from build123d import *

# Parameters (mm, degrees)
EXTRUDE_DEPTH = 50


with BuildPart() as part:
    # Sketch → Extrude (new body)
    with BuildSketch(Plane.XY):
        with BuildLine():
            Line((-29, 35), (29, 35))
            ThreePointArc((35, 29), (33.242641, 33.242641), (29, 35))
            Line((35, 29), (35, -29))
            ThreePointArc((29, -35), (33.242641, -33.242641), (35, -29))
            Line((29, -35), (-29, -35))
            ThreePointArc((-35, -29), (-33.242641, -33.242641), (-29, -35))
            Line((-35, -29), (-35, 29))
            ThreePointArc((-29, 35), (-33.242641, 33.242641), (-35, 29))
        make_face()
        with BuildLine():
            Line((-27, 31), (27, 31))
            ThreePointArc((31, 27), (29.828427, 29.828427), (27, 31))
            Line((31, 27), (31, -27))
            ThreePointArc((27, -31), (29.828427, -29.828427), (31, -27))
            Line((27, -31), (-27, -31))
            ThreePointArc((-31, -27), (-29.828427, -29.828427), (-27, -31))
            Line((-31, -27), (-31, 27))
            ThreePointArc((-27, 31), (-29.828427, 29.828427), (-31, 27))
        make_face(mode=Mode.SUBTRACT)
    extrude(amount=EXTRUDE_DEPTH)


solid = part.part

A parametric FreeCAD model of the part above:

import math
import FreeCAD as App
import Part
import Sketcher
Q = App.Units.Quantity

doc = App.newDocument("Part")
params = doc.addObject("Spreadsheet::Sheet", "Params")
for row, (alias, value) in enumerate([
    ("sketch1_radius", "5.999999 mm"),
    ("sketch1_radius2", "4 mm"),
    ("sketch1_width", "58 mm"),
    ("sketch1_width2", "54 mm"),
    ("pad1_length", "50 mm"),
], start=1):
    params.set(f"A{row}", alias)
    params.set(f"B{row}", "=" + value)
    params.setAlias(f"B{row}", alias)

body = doc.addObject("PartDesign::Body", "Body")

# Sketch on XY plane
sketch1 = doc.addObject("Sketcher::SketchObject", "Sketch")
body.addObject(sketch1)
sketch1.AttachmentSupport = (doc.XY_Plane, [""])
sketch1.MapMode = "FlatFace"
sketch1.addGeometry([
    Part.LineSegment(App.Vector(29, 35, 0), App.Vector(-29, 35, 0)),  # 0
    Part.ArcOfCircle(Part.Circle(App.Vector(-29.000001, 29.000001, 0), App.Vector(0, 0, 1), 5.999999), math.radians(89.99999), math.radians(180.00001)),  # 1
    Part.LineSegment(App.Vector(-35, 29, 0), App.Vector(-35, -29, 0)),  # 2
    Part.ArcOfCircle(Part.Circle(App.Vector(-29.000001, -29.000001, 0), App.Vector(0, 0, 1), 5.999999), math.radians(179.99999), math.radians(270.00001)),  # 3
    Part.LineSegment(App.Vector(-29, -35, 0), App.Vector(29, -35, 0)),  # 4
    Part.ArcOfCircle(Part.Circle(App.Vector(29.000001, -29.000001, 0), App.Vector(0, 0, 1), 5.999999), math.radians(-90.00001), math.radians(0.00001)),  # 5
    Part.LineSegment(App.Vector(35, -29, 0), App.Vector(35, 29, 0)),  # 6
    Part.ArcOfCircle(Part.Circle(App.Vector(29.000001, 29.000001, 0), App.Vector(0, 0, 1), 5.999999), math.radians(-0.00001), math.radians(90.00001)),  # 7
    Part.LineSegment(App.Vector(-27, 31, 0), App.Vector(27, 31, 0)),  # 8
    Part.ArcOfCircle(Part.Circle(App.Vector(27, 27, 0), App.Vector(0, 0, 1), 4), math.radians(0.000006), math.radians(89.999994)),  # 9
    Part.LineSegment(App.Vector(31, 27, 0), App.Vector(31, -27, 0)),  # 10
    Part.ArcOfCircle(Part.Circle(App.Vector(27, -27, 0), App.Vector(0, 0, 1), 4), math.radians(-89.999994), math.radians(-0.000006)),  # 11
    Part.LineSegment(App.Vector(27, -31, 0), App.Vector(-27, -31, 0)),  # 12
    Part.ArcOfCircle(Part.Circle(App.Vector(-27, -27, 0), App.Vector(0, 0, 1), 4), math.radians(-179.999994), math.radians(-90.000006)),  # 13
    Part.LineSegment(App.Vector(-31, -27, 0), App.Vector(-31, 27, 0)),  # 14
    Part.ArcOfCircle(Part.Circle(App.Vector(-27, 27, 0), App.Vector(0, 0, 1), 4), math.radians(90.000006), math.radians(179.999994)),  # 15
], False)
sketch1.addConstraint([
    Sketcher.Constraint("Tangent", 0, 2, 1, 1),
    Sketcher.Constraint("Tangent", 1, 2, 2, 1),
    Sketcher.Constraint("Tangent", 2, 2, 3, 1),
    Sketcher.Constraint("Tangent", 3, 2, 4, 1),
    Sketcher.Constraint("Tangent", 4, 2, 5, 1),
    Sketcher.Constraint("Tangent", 5, 2, 6, 1),
    Sketcher.Constraint("Tangent", 6, 2, 7, 1),
    Sketcher.Constraint("Tangent", 7, 2, 0, 1),
    Sketcher.Constraint("Tangent", 8, 2, 9, 2),
    Sketcher.Constraint("Tangent", 9, 1, 10, 1),
    Sketcher.Constraint("Tangent", 10, 2, 11, 2),
    Sketcher.Constraint("Tangent", 11, 1, 12, 1),
    Sketcher.Constraint("Tangent", 12, 2, 13, 2),
    Sketcher.Constraint("Tangent", 13, 1, 14, 1),
    Sketcher.Constraint("Tangent", 14, 2, 15, 2),
    Sketcher.Constraint("Tangent", 15, 1, 8, 1),
    Sketcher.Constraint("Horizontal", 0),
    Sketcher.Constraint("Vertical", 2),
    Sketcher.Constraint("Horizontal", 4),
    Sketcher.Constraint("Vertical", 6),
    Sketcher.Constraint("Horizontal", 8),
    Sketcher.Constraint("Vertical", 10),
    Sketcher.Constraint("Horizontal", 12),
    Sketcher.Constraint("Vertical", 14),
    Sketcher.Constraint("Equal", 1, 3),
    Sketcher.Constraint("Equal", 3, 5),
    Sketcher.Constraint("Equal", 5, 7),
    Sketcher.Constraint("Equal", 9, 11),
    Sketcher.Constraint("Equal", 11, 13),
    Sketcher.Constraint("Equal", 13, 15),
    Sketcher.Constraint("Symmetric", 1, 3, 5, 3, -1, 1),
    Sketcher.Constraint("Symmetric", 9, 3, 13, 3, -1, 1),
    Sketcher.Constraint("Equal", 4, 2),
    Sketcher.Constraint("Equal", 12, 10),
    Sketcher.Constraint("Radius", 1, Q("5.999999 mm")),
    Sketcher.Constraint("Radius", 9, Q("4 mm")),
    Sketcher.Constraint("DistanceX", 0, 2, 0, 1, Q("58 mm")),
    Sketcher.Constraint("DistanceX", 8, 1, 8, 2, Q("54 mm")),
])
sketch1.setExpression("Constraints[34]", "Params.sketch1_radius")
sketch1.setExpression("Constraints[35]", "Params.sketch1_radius2")
sketch1.setExpression("Constraints[36]", "Params.sketch1_width")
sketch1.setExpression("Constraints[37]", "Params.sketch1_width2")
pad1 = doc.addObject("PartDesign::Pad", "Pad")
body.addObject(pad1)
pad1.Profile = sketch1
pad1.setExpression("Length", "Params.pad1_length")

doc.recompute()
